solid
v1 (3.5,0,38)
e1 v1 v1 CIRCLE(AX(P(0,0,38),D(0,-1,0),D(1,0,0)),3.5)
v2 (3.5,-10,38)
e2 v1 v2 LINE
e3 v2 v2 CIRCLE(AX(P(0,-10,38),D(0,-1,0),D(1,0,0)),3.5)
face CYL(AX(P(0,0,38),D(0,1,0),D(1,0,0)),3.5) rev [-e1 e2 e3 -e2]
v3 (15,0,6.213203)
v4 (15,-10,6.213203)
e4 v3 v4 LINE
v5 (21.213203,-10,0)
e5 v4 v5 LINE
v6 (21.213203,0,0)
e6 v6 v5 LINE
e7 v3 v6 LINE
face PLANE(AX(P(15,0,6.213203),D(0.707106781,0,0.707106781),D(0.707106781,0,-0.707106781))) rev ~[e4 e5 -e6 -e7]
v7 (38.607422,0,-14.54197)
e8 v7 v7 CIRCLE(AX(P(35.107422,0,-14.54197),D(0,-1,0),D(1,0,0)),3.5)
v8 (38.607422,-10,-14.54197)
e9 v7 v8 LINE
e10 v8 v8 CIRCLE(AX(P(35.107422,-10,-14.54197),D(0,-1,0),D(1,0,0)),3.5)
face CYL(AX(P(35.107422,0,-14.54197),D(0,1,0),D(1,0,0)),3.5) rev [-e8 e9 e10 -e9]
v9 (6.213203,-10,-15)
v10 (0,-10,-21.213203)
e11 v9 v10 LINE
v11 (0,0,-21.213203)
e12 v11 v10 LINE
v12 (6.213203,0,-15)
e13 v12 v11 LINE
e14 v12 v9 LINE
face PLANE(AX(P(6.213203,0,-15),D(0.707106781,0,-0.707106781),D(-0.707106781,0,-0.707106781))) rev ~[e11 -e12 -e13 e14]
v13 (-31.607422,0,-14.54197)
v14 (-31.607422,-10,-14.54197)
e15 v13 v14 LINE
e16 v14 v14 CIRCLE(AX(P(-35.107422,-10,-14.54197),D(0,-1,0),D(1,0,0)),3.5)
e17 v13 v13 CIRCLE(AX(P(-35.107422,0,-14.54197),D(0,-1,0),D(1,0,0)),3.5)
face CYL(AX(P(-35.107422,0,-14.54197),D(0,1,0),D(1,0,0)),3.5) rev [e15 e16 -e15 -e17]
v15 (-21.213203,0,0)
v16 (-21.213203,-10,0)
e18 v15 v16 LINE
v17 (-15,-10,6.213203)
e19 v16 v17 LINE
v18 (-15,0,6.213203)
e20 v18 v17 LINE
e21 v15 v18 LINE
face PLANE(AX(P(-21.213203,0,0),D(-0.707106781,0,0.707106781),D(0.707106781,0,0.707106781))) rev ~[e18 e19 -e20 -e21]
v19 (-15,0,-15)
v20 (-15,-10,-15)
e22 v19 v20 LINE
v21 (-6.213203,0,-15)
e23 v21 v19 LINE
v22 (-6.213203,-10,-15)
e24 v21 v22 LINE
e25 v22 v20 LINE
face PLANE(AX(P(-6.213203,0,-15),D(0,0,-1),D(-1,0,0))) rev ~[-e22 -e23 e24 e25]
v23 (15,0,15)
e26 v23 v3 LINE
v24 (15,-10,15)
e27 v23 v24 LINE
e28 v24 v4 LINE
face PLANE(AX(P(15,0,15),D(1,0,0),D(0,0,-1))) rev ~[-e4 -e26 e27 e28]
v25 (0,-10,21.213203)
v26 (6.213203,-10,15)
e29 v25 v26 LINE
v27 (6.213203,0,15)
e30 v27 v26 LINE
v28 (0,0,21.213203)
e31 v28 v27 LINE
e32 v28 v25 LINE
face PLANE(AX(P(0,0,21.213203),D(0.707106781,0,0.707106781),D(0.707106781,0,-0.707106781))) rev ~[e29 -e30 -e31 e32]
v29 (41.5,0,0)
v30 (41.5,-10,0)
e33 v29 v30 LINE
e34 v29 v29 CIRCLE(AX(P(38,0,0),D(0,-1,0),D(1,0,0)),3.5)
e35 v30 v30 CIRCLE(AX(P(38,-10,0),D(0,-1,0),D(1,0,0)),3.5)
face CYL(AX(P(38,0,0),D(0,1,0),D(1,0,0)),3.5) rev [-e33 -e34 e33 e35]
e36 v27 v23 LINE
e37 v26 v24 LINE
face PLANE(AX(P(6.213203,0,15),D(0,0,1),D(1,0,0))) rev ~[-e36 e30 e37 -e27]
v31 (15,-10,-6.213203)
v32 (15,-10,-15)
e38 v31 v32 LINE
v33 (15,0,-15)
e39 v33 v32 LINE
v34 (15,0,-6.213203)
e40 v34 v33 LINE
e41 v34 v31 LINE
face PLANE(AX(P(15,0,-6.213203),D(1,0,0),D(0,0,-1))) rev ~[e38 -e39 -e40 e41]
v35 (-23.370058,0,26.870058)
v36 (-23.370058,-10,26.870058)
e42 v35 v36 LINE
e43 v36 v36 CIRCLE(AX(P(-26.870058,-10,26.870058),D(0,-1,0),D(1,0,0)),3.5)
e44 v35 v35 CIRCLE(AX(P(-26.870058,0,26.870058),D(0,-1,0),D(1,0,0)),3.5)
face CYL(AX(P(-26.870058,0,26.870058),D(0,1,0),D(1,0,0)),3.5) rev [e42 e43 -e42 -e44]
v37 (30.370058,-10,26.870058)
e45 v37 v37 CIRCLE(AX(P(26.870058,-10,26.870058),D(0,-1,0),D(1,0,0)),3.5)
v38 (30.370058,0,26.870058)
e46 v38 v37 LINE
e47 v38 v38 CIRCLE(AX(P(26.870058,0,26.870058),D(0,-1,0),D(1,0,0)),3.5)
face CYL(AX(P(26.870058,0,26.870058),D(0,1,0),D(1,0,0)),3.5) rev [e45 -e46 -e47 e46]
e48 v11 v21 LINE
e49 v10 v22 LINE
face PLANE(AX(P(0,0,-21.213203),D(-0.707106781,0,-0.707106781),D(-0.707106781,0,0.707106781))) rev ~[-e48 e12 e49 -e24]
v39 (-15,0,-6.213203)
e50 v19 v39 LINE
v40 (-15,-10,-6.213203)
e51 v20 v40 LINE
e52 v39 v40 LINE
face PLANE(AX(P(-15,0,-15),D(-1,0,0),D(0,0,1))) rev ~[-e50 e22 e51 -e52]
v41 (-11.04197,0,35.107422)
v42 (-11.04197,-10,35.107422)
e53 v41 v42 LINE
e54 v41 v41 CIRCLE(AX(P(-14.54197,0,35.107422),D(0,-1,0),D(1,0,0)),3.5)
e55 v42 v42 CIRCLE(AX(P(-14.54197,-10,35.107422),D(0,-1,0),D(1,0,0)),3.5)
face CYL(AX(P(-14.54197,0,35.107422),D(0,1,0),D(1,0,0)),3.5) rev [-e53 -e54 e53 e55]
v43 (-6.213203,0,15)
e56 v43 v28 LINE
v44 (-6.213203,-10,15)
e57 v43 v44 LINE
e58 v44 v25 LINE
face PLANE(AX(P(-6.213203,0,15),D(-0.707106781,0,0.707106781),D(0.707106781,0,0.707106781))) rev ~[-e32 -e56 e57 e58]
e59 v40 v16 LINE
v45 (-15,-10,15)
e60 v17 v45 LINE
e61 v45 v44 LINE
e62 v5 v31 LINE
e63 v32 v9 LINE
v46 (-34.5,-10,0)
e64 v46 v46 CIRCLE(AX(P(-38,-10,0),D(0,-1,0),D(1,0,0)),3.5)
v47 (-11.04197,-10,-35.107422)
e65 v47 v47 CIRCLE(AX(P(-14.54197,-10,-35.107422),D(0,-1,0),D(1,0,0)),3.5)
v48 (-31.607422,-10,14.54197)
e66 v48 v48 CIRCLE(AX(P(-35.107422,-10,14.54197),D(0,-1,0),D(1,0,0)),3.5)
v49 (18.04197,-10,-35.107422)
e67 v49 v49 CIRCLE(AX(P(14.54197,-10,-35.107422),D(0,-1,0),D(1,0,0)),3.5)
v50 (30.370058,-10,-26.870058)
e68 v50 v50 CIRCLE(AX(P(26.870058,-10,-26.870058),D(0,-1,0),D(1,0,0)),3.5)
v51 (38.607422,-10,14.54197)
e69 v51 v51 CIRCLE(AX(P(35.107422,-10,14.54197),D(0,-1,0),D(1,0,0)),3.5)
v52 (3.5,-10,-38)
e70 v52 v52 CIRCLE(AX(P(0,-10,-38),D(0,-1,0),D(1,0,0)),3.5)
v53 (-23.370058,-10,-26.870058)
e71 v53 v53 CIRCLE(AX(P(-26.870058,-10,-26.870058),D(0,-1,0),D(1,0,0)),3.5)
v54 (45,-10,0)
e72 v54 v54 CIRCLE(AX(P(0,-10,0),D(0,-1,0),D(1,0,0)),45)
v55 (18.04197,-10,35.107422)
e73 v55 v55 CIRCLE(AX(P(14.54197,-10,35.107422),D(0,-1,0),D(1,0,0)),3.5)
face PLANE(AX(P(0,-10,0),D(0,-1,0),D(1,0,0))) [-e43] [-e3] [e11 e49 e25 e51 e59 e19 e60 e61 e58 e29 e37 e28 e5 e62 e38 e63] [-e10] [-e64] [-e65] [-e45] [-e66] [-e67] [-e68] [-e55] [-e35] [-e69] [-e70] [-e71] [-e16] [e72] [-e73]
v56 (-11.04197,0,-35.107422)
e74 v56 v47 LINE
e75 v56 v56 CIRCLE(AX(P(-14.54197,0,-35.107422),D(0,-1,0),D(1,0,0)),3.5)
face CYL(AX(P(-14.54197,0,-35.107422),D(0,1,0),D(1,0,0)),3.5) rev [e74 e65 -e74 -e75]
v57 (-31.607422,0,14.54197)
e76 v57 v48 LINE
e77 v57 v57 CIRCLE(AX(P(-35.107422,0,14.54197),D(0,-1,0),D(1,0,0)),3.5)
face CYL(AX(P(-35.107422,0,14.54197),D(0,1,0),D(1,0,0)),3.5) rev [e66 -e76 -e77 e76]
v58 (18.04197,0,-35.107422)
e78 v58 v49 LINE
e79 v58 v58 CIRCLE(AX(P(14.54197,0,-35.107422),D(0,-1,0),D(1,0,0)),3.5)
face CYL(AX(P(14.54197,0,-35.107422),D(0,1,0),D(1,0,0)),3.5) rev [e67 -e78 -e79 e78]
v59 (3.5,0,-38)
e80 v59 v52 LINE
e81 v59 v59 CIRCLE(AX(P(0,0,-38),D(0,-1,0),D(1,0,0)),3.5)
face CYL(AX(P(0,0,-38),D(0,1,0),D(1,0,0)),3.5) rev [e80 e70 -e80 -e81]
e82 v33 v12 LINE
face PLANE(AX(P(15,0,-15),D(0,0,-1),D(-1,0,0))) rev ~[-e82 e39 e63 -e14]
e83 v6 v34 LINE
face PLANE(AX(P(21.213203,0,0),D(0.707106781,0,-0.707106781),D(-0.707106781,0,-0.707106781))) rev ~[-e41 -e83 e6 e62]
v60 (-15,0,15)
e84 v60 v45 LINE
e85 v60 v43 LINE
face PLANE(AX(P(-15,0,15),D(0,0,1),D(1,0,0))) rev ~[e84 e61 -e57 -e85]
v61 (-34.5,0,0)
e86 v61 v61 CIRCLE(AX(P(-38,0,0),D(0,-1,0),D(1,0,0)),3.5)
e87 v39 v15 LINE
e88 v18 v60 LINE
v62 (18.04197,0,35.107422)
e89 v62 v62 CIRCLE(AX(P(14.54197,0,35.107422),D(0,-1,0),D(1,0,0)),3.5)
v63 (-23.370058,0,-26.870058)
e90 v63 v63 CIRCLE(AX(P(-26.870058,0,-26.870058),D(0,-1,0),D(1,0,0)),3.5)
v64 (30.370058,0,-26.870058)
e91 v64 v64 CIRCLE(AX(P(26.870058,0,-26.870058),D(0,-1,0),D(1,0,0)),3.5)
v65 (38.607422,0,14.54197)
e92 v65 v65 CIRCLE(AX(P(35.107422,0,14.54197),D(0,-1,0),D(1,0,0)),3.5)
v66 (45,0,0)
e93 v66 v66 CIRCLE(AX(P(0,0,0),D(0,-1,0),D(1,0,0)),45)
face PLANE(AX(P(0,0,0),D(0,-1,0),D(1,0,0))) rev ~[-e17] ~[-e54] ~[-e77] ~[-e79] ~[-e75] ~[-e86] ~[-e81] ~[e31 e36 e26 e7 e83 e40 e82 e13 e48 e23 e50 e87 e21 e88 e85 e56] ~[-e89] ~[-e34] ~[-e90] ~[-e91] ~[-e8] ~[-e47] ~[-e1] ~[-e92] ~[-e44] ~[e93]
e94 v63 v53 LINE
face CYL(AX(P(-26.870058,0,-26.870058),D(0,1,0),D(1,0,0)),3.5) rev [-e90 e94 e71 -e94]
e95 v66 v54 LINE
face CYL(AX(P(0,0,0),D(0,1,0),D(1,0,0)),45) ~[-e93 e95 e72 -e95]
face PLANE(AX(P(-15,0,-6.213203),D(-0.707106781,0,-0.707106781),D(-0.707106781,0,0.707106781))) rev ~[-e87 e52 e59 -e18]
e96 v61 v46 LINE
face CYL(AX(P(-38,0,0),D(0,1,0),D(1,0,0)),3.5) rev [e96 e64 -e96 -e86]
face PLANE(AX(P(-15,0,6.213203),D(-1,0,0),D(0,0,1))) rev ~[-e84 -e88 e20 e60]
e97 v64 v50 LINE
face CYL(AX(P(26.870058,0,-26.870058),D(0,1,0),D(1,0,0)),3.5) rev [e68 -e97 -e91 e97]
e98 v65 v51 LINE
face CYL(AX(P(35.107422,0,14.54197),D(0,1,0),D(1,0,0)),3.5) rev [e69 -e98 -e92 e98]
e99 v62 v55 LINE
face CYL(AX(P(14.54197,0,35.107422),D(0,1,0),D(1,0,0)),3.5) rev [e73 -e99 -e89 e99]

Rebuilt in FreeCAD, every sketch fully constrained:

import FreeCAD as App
import Part
import Sketcher
from FreeCAD import Vector
Q = App.Units.Quantity

doc = App.newDocument("Part")
params = doc.addObject("Spreadsheet::Sheet", "Params")
for row, (alias, value) in enumerate([
    ("sketch1_diameter", "90 mm"),
    ("sketch1_diameter2", "7 mm"),
    ("pad1_length", "10 mm"),
], start=1):
    params.set(f"A{row}", alias)
    params.set(f"B{row}", "=" + value)
    params.setAlias(f"B{row}", alias)

body = doc.addObject("PartDesign::Body", "Body")

# Sketch on XZ plane
sketch1 = body.newObject("Sketcher::SketchObject", "Sketch")
sketch1.AttachmentSupport = (doc.getObject("XZ_Plane"), [""])
sketch1.MapMode = "FlatFace"
sketch1.addGeometry([
    Part.Circle(Vector(0, 0, 0), Vector(0, 0, 1), 45),  # 0
    Part.Circle(Vector(-26.9, -26.9, 0), Vector(0, 0, 1), 3.5),  # 1
    Part.Circle(Vector(-14.5, -35.1, 0), Vector(0, 0, 1), 3.5),  # 2
    Part.Circle(Vector(-35.1, -14.5, 0), Vector(0, 0, 1), 3.5),  # 3
    Part.Circle(Vector(0, -38, 0), Vector(0, 0, 1), 3.5),  # 4
    Part.Circle(Vector(14.5, -35.1, 0), Vector(0, 0, 1), 3.5),  # 5
    Part.Circle(Vector(26.9, -26.9, 0), Vector(0, 0, 1), 3.5),  # 6
    Part.Circle(Vector(35.1, -14.5, 0), Vector(0, 0, 1), 3.5),  # 7
    Part.Circle(Vector(-38, 0, 0), Vector(0, 0, 1), 3.5),  # 8
    Part.Circle(Vector(-35.1, 14.5, 0), Vector(0, 0, 1), 3.5),  # 9
    Part.Circle(Vector(-26.9, 26.9, 0), Vector(0, 0, 1), 3.5),  # 10
    Part.Circle(Vector(-14.5, 35.1, 0), Vector(0, 0, 1), 3.5),  # 11
    Part.LineSegment(Vector(15, 15, 0), Vector(15, 6.2, 0)),  # 12
    Part.LineSegment(Vector(15, 6.2, 0), Vector(21.2, 0, 0)),  # 13
    Part.LineSegment(Vector(21.2, 0, 0), Vector(15, -6.2, 0)),  # 14
    Part.LineSegment(Vector(15, -6.2, 0), Vector(15, -15, 0)),  # 15
    Part.LineSegment(Vector(15, -15, 0), Vector(6.2, -15, 0)),  # 16
    Part.LineSegment(Vector(6.2, -15, 0), Vector(0, -21.2, 0)),  # 17
    Part.LineSegment(Vector(0, -21.2, 0), Vector(-6.2, -15, 0)),  # 18
    Part.LineSegment(Vector(-6.2, -15, 0), Vector(-15, -15, 0)),  # 19
    Part.LineSegment(Vector(-15, -15, 0), Vector(-15, -6.2, 0)),  # 20
    Part.LineSegment(Vector(-15, -6.2, 0), Vector(-21.2, 0, 0)),  # 21
    Part.LineSegment(Vector(-21.2, 0, 0), Vector(-15, 6.2, 0)),  # 22
    Part.LineSegment(Vector(-15, 6.2, 0), Vector(-15, 15, 0)),  # 23
    Part.LineSegment(Vector(-15, 15, 0), Vector(-6.2, 15, 0)),  # 24
    Part.LineSegment(Vector(-6.2, 15, 0), Vector(0, 21.2, 0)),  # 25
    Part.LineSegment(Vector(0, 21.2, 0), Vector(6.2, 15, 0)),  # 26
    Part.LineSegment(Vector(6.2, 15, 0), Vector(15, 15, 0)),  # 27
    Part.Circle(Vector(38, 0, 0), Vector(0, 0, 1), 3.5),  # 28
    Part.Circle(Vector(35.1, 14.5, 0), Vector(0, 0, 1), 3.5),  # 29
    Part.Circle(Vector(0, 38, 0), Vector(0, 0, 1), 3.5),  # 30
    Part.Circle(Vector(14.5, 35.1, 0), Vector(0, 0, 1), 3.5),  # 31
    Part.Circle(Vector(26.9, 26.9, 0), Vector(0, 0, 1), 3.5),  # 32
], False)
sketch1.addConstraint([
    Sketcher.Constraint("Coincident", 12, 2, 13, 1),
    Sketcher.Constraint("Coincident", 13, 2, 14, 1),
    Sketcher.Constraint("Coincident", 14, 2, 15, 1),
    Sketcher.Constraint("Coincident", 15, 2, 16, 1),
    Sketcher.Constraint("Coincident", 16, 2, 17, 1),
    Sketcher.Constraint("Coincident", 17, 2, 18, 1),
    Sketcher.Constraint("Coincident", 18, 2, 19, 1),
    Sketcher.Constraint("Coincident", 19, 2, 20, 1),
    Sketcher.Constraint("Coincident", 20, 2, 21, 1),
    Sketcher.Constraint("Coincident", 21, 2, 22, 1),
    Sketcher.Constraint("Coincident", 22, 2, 23, 1),
    Sketcher.Constraint("Coincident", 23, 2, 24, 1),
    Sketcher.Constraint("Coincident", 24, 2, 25, 1),
    Sketcher.Constraint("Coincident", 25, 2, 26, 1),
    Sketcher.Constraint("Coincident", 26, 2, 27, 1),
    Sketcher.Constraint("Coincident", 27, 2, 12, 1),
    Sketcher.Constraint("Vertical", 12),
    Sketcher.Constraint("Vertical", 15),
    Sketcher.Constraint("Horizontal", 16),
    Sketcher.Constraint("Horizontal", 19),
    Sketcher.Constraint("Vertical", 20),
    Sketcher.Constraint("Vertical", 23),
    Sketcher.Constraint("Horizontal", 24),
    Sketcher.Constraint("Horizontal", 27),
    Sketcher.Constraint("Coincident", 0, 3, -1, 1),
    Sketcher.Constraint("Equal", 1, 2),
    Sketcher.Constraint("Equal", 2, 3),
    Sketcher.Constraint("Equal", 3, 4),
    Sketcher.Constraint("Equal", 4, 5),
    Sketcher.Constraint("Equal", 5, 6),
    Sketcher.Constraint("Equal", 6, 7),
    Sketcher.Constraint("Equal", 7, 8),
    Sketcher.Constraint("Equal", 8, 9),
    Sketcher.Constraint("Equal", 9, 10),
    Sketcher.Constraint("Equal", 10, 11),
    Sketcher.Constraint("Equal", 11, 28),
    Sketcher.Constraint("Equal", 28, 29),
    Sketcher.Constraint("Equal", 29, 30),
    Sketcher.Constraint("Equal", 30, 31),
    Sketcher.Constraint("Equal", 31, 32),
    Sketcher.Constraint("Symmetric", 7, 3, 9, 3, -1, 1),
    Sketcher.Constraint("Symmetric", 6, 3, 10, 3, -1, 1),
    Sketcher.Constraint("Symmetric", 5, 3, 11, 3, -1, 1),
    Sketcher.Constraint("Symmetric", 8, 3, 28, 3, -1, 1),
    Sketcher.Constraint("Symmetric", 3, 3, 29, 3, -1, 1),
    Sketcher.Constraint("Symmetric", 4, 3, 30, 3, -1, 1),
    Sketcher.Constraint("Symmetric", 2, 3, 31, 3, -1, 1),
    Sketcher.Constraint("Symmetric", 1, 3, 32, 3, -1, 1),
    Sketcher.Constraint("Symmetric", 12, 2, 20, 2, -1, 1),
    Sketcher.Constraint("Symmetric", 13, 2, 21, 2, -1, 1),
    Sketcher.Constraint("Symmetric", 14, 2, 22, 2, -1, 1),
    Sketcher.Constraint("Symmetric", 16, 2, 24, 2, -1, 1),
    Sketcher.Constraint("Symmetric", 17, 2, 25, 2, -1, 1),
    Sketcher.Constraint("Symmetric", 18, 2, 26, 2, -1, 1),
    Sketcher.Constraint("Symmetric", 2, 3, 5, 3, -2),
    Sketcher.Constraint("Symmetric", 1, 3, 6, 3, -2),
    Sketcher.Constraint("Symmetric", 3, 3, 7, 3, -2),
    Sketcher.Constraint("Symmetric", 16, 2, 18, 2, -2),
    Sketcher.Constraint("Symmetric", 14, 2, 20, 2, -2),
    Sketcher.Constraint("PointOnObject", 4, 3, -2),
    Sketcher.Constraint("PointOnObject", 8, 3, -1),
    Sketcher.Constraint("PointOnObject", 13, 2, -1),
    Sketcher.Constraint("PointOnObject", 17, 2, -2),
    Sketcher.Constraint("Perpendicular", 13, 14),
    Sketcher.Constraint("Parallel", 14, 17),
    Sketcher.Constraint("Equal", 27, 12),
    Sketcher.Constraint("Equal", 14, 17),
    Sketcher.Constraint("Diameter", 0, Q("90 mm")),
    Sketcher.Constraint("Diameter", 1, Q("7 mm")),
    Sketcher.Constraint("DistanceY", 4, 3, -1, 1, Q("38 mm")),
    Sketcher.Constraint("DistanceX", 8, 3, -1, 1, Q("38 mm")),
    Sketcher.Constraint("DistanceX", -1, 1, 12, 2, Q("15 mm")),
    Sketcher.Constraint("DistanceX", 16, 2, 16, 1, Q("8.786797 mm")),
    Sketcher.Constraint("DistanceX", 1, 3, -1, 1, Q("26.870058 mm")),
    Sketcher.Constraint("DistanceY", 1, 3, -1, 1, Q("26.870058 mm")),
    Sketcher.Constraint("DistanceX", 2, 3, -1, 1, Q("14.54197 mm")),
    Sketcher.Constraint("DistanceY", 3, 3, -1, 1, Q("14.54197 mm")),
    Sketcher.Constraint("DistanceY", 4, 3, 2, 3, Q("2.892578 mm")),
    Sketcher.Constraint("DistanceX", 8, 3, 3, 3, Q("2.892578 mm")),
])
sketch1.setExpression("Constraints[67]", "Params.sketch1_diameter")
sketch1.setExpression("Constraints[68]", "Params.sketch1_diameter2")
pad1 = body.newObject("PartDesign::Pad", "Pad")
pad1.Profile = sketch1
pad1.setExpression("Length", "Params.pad1_length")

doc.recompute()
